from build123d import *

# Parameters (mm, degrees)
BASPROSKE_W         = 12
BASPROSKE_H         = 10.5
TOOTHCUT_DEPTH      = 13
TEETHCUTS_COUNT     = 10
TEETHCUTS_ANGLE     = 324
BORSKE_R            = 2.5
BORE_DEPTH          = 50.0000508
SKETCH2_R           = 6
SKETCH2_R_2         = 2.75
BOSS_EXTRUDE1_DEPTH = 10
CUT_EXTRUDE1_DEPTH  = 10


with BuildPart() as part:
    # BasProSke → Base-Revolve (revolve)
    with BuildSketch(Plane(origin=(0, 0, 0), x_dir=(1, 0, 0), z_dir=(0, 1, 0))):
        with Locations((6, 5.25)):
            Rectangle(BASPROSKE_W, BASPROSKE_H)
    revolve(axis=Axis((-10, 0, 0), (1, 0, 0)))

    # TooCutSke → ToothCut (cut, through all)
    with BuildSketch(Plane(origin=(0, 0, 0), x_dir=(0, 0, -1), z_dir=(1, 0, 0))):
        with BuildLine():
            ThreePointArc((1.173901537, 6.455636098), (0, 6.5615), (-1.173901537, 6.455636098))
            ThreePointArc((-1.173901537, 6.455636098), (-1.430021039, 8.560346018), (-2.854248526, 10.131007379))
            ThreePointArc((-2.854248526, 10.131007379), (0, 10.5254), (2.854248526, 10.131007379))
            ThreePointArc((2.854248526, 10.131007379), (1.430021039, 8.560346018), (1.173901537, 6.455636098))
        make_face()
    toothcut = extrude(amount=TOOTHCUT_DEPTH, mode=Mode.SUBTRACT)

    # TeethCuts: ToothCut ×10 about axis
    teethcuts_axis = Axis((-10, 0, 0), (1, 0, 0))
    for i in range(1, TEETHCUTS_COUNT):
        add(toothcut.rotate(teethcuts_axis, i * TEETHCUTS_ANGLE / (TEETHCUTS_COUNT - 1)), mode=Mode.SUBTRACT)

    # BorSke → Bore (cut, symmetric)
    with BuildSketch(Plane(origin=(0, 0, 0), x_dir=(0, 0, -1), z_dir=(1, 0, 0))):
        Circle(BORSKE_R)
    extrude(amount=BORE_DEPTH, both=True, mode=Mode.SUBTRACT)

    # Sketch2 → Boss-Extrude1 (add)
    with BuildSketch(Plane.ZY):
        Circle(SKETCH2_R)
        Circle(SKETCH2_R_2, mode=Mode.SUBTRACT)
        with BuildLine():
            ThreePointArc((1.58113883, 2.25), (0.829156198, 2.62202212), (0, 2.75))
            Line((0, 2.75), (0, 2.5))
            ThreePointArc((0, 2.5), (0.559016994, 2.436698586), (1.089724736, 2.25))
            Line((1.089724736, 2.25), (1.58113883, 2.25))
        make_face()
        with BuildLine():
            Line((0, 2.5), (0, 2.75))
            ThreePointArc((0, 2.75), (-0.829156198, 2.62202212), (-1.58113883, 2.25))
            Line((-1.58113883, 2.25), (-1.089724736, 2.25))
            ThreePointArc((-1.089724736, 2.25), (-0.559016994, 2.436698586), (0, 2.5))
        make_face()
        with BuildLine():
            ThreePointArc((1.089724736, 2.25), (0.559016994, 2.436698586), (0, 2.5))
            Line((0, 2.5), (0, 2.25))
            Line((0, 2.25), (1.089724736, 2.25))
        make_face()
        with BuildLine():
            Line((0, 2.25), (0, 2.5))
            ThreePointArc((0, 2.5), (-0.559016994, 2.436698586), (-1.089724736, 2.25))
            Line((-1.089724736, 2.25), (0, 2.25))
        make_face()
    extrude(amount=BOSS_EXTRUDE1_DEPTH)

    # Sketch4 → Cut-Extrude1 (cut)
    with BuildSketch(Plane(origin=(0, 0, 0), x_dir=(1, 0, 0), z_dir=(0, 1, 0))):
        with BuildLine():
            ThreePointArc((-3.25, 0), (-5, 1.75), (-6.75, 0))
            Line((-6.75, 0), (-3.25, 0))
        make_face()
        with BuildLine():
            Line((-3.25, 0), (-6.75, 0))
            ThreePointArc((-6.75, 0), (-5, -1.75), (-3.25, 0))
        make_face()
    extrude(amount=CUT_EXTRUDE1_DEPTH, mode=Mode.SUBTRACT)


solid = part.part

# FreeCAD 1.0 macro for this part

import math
import FreeCAD as App
import Part
import Sketcher
Q = App.Units.Quantity

doc = App.newDocument("Part")
params = doc.addObject("Spreadsheet::Sheet", "Params")
for row, (alias, value) in enumerate([
    ("sketch1_width", "12 mm"),
    ("sketch1_height", "10.5 mm"),
    ("revolution_angle", "360 deg"),
    ("sketch2_radius", "3.5 mm"),
    ("sketch3_diameter", "5 mm"),
    ("pocket2_length", "100.000102 mm"),
    ("sketch4_diameter", "12 mm"),
    ("sketch4_radius", "2.75 mm"),
    ("pad1_length", "10 mm"),
    ("sketch5_diameter", "3.5 mm"),
    ("pocket3_length", "10 mm"),
], start=1):
    params.set(f"A{row}", alias)
    params.set(f"B{row}", "=" + value)
    params.setAlias(f"B{row}", alias)

body = doc.addObject("PartDesign::Body", "Body")

# Sketch on XZ plane
sketch1 = doc.addObject("Sketcher::SketchObject", "Sketch")
body.addObject(sketch1)
sketch1.AttachmentSupport = (doc.XZ_Plane, [""])
sketch1.MapMode = "FlatFace"
sketch1.addGeometry(Part.LineSegment(App.Vector(0, -10, 0), App.Vector(0, 0, 0)), False)
sketch1.addGeometry(Part.LineSegment(App.Vector(0, 0, 0), App.Vector(12, 0, 0)), False)
sketch1.addGeometry(Part.LineSegment(App.Vector(12, 0, 0), App.Vector(12, -10, 0)), False)
sketch1.addGeometry(Part.LineSegment(App.Vector(12, -10, 0), App.Vector(0, -10, 0)), False)
sketch1.addConstraint(Sketcher.Constraint("Coincident", 0, 2, 1, 1))
sketch1.addConstraint(Sketcher.Constraint("Coincident", 1, 2, 2, 1))
sketch1.addConstraint(Sketcher.Constraint("Coincident", 2, 2, 3, 1))
sketch1.addConstraint(Sketcher.Constraint("Coincident", 3, 2, 0, 1))
sketch1.addConstraint(Sketcher.Constraint("Vertical", 0))
sketch1.addConstraint(Sketcher.Constraint("Horizontal", 1))
sketch1.addConstraint(Sketcher.Constraint("Vertical", 2))
sketch1.addConstraint(Sketcher.Constraint("Horizontal", 3))
sketch1.addConstraint(Sketcher.Constraint("Coincident", 0, 2, -1, 1))
sketch1.addConstraint(Sketcher.Constraint("DistanceX", 1, 1, 1, 2, Q("12 mm")))
sketch1.addConstraint(Sketcher.Constraint("DistanceY", 0, 1, 0, 2, Q("10.5 mm")))
sketch1.setExpression("Constraints[9]", "Params.sketch1_width")
sketch1.setExpression("Constraints[10]", "Params.sketch1_height")
revolution = doc.addObject("PartDesign::Revolution", "Revolution")
body.addObject(revolution)
revolution.Profile = sketch1
revolution.ReferenceAxis = (sketch1, ["H_Axis"])
revolution.setExpression("Angle", "Params.revolution_angle")

# Sketch on YZ plane
sketch2 = doc.addObject("Sketcher::SketchObject", "Sketch001")
body.addObject(sketch2)
sketch2.AttachmentSupport = (doc.YZ_Plane, [""])
sketch2.MapMode = "FlatFace"
sketch2.addGeometry(Part.ArcOfCircle(Part.Circle(App.Vector(0, 0, 0), App.Vector(0, 0, 1), 6.6), math.radians(-10), math.radians(10)), False)
sketch2.addGeometry(Part.ArcOfCircle(Part.Circle(App.Vector(7.1, -4.6, 0), App.Vector(0, 0, 1), 3.5), math.radians(30), math.radians(101)), False)
sketch2.addGeometry(Part.ArcOfCircle(Part.Circle(App.Vector(0, 0, 0), App.Vector(0, 0, 1), 10.5), math.radians(-16), math.radians(16)), False)
sketch2.addGeometry(Part.ArcOfCircle(Part.Circle(App.Vector(7.1, 4.6, 0), App.Vector(0, 0, 1), 3.5), math.radians(-101), math.radians(-30)), False)
sketch2.addConstraint(Sketcher.Constraint("Coincident", 0, 1, 1, 2))
sketch2.addConstraint(Sketcher.Constraint("Coincident", 1, 1, 2, 1))
sketch2.addConstraint(Sketcher.Constraint("Coincident", 2, 2, 3, 2))
sketch2.addConstraint(Sketcher.Constraint("Coincident", 3, 1, 0, 2))
sketch2.addConstraint(Sketcher.Constraint("Coincident", 0, 3, -1, 1))
sketch2.addConstraint(Sketcher.Constraint("Coincident", 2, 3, -1, 1))
sketch2.addConstraint(Sketcher.Constraint("Equal", 1, 3))
sketch2.addConstraint(Sketcher.Constraint("Symmetric", 1, 3, 3, 3, -1))
sketch2.addConstraint(Sketcher.Constraint("Radius", 1, Q("3.5 mm")))
sketch2.addConstraint(Sketcher.Constraint("Radius", 0, Q("6.5615 mm")))
sketch2.addConstraint(Sketcher.Constraint("Radius", 2, Q("10.5254 mm")))
sketch2.addConstraint(Sketcher.Constraint("DistanceY", 0, 1, -1, 1, Q("1.173902 mm")))
sketch2.addConstraint(Sketcher.Constraint("DistanceX", -1, 1, 1, 3, Q("7.10506 mm")))
sketch2.setExpression("Constraints[8]", "Params.sketch2_radius")
pocket1 = doc.addObject("PartDesign::Pocket", "Pocket")
body.addObject(pocket1)
pocket1.Profile = sketch2
pocket1.Type = "ThroughAll"
pocket1.Reversed = True
doc.recompute()

polarpattern = doc.addObject("PartDesign::PolarPattern", "PolarPattern")
body.addObject(polarpattern)
polarpattern.Originals = [pocket1]
polarpattern.Axis = (doc.X_Axis, [""])
polarpattern.Angle = 360
polarpattern.Occurrences = 10
body.Tip = polarpattern

# Sketch on YZ plane
sketch3 = doc.addObject("Sketcher::SketchObject", "Sketch002")
body.addObject(sketch3)
sketch3.AttachmentSupport = (doc.YZ_Plane, [""])
sketch3.MapMode = "FlatFace"
sketch3.addGeometry(Part.Circle(App.Vector(0, 0, 0), App.Vector(0, 0, 1), 2.5), False)
sketch3.addConstraint(Sketcher.Constraint("Coincident", 0, 3, -1, 1))
sketch3.addConstraint(Sketcher.Constraint("Diameter", 0, Q("5 mm")))
sketch3.setExpression("Constraints[1]", "Params.sketch3_diameter")
pocket2 = doc.addObject("PartDesign::Pocket", "Pocket001")
body.addObject(pocket2)
pocket2.Profile = sketch3
pocket2.setExpression("Length", "Params.pocket2_length")
pocket2.Midplane = True

# Sketch on YZ plane
sketch4 = doc.addObject("Sketcher::SketchObject", "Sketch003")
body.addObject(sketch4)
sketch4.AttachmentSupport = (doc.YZ_Plane, [""])
sketch4.MapMode = "FlatFace"
sketch4.addGeometry(Part.Circle(App.Vector(0, 0, 0), App.Vector(0, 0, 1), 6), False)
sketch4.addGeometry(Part.ArcOfCircle(Part.Circle(App.Vector(0, 0, 0), App.Vector(0, 0, 1), 2.8), math.radians(35), math.radians(325)), False)
sketch4.addGeometry(Part.LineSegment(App.Vector(2.2, -1.6, 0), App.Vector(2.2, 1.6, 0)), False)
sketch4.addConstraint(Sketcher.Constraint("Coincident", 1, 1, 2, 2))
sketch4.addConstraint(Sketcher.Constraint("Coincident", 2, 1, 1, 2))
sketch4.addConstraint(Sketcher.Constraint("Vertical", 2))
sketch4.addConstraint(Sketcher.Constraint("Coincident", 0, 3, -1, 1))
sketch4.addConstraint(Sketcher.Constraint("Coincident", 1, 3, -1, 1))
sketch4.addConstraint(Sketcher.Constraint("Diameter", 0, Q("12 mm")))
sketch4.addConstraint(Sketcher.Constraint("Radius", 1, Q("2.75 mm")))
sketch4.addConstraint(Sketcher.Constraint("DistanceX", -1, 1, 1, 1, Q("2.25 mm")))
sketch4.setExpression("Constraints[5]", "Params.sketch4_diameter")
sketch4.setExpression("Constraints[6]", "Params.sketch4_radius")
pad1 = doc.addObject("PartDesign::Pad", "Pad")
body.addObject(pad1)
pad1.Profile = sketch4
pad1.setExpression("Length", "Params.pad1_length")
pad1.Reversed = True

# Sketch on XZ plane
sketch5 = doc.addObject("Sketcher::SketchObject", "Sketch004")
body.addObject(sketch5)
sketch5.AttachmentSupport = (doc.XZ_Plane, [""])
sketch5.MapMode = "FlatFace"
sketch5.addGeometry(Part.Circle(App.Vector(-5, 0, 0), App.Vector(0, 0, 1), 1.8), False)
sketch5.addConstraint(Sketcher.Constraint("PointOnObject", 0, 3, -1))
sketch5.addConstraint(Sketcher.Constraint("Diameter", 0, Q("3.5 mm")))
sketch5.addConstraint(Sketcher.Constraint("DistanceX", 0, 3, -1, 1, Q("5 mm")))
sketch5.setExpression("Constraints[1]", "Params.sketch5_diameter")
pocket3 = doc.addObject("PartDesign::Pocket", "Pocket002")
body.addObject(pocket3)
pocket3.Profile = sketch5
pocket3.setExpression("Length", "Params.pocket3_length")

doc.recompute()
